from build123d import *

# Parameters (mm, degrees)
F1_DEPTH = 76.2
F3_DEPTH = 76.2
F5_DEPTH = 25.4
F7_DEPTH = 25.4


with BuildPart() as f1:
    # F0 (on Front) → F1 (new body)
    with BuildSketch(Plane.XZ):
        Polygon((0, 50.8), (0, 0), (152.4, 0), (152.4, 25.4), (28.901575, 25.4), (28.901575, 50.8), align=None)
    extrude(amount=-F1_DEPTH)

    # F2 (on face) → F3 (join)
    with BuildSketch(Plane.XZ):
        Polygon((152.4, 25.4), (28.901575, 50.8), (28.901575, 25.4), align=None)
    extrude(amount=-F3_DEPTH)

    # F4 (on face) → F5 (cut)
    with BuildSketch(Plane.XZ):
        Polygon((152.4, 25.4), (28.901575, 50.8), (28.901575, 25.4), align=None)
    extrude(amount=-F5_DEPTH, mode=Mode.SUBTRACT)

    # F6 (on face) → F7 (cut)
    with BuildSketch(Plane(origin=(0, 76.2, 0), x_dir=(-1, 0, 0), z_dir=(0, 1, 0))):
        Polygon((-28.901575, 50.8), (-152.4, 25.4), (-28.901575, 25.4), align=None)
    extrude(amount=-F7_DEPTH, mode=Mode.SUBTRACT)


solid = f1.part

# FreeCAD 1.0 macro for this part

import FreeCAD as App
import Part
import Sketcher
from FreeCAD import Vector
Q = App.Units.Quantity

doc = App.newDocument("Part")
body = doc.addObject("PartDesign::Body", "Body")

# Sketch on XZ plane
sketch1 = doc.addObject("Sketcher::SketchObject", "Sketch")
body.addObject(sketch1)
sketch1.AttachmentSupport = (doc.XZ_Plane, [""])
sketch1.MapMode = "FlatFace"
sketch1.addGeometry([
    Part.LineSegment(Vector(0, 51, 0), Vector(0, 0, 0)),  # 0
    Part.LineSegment(Vector(0, 0, 0), Vector(152, 0, 0)),  # 1
    Part.LineSegment(Vector(152, 0, 0), Vector(152, 25, 0)),  # 2
    Part.LineSegment(Vector(152, 25, 0), Vector(29, 25, 0)),  # 3
    Part.LineSegment(Vector(29, 25, 0), Vector(29, 51, 0)),  # 4
    Part.LineSegment(Vector(29, 51, 0), Vector(0, 51, 0)),  # 5
], False)
sketch1.addConstraint([
    Sketcher.Constraint("Coincident", 0, 2, 1, 1),
    Sketcher.Constraint("Coincident", 1, 2, 2, 1),
    Sketcher.Constraint("Coincident", 2, 2, 3, 1),
    Sketcher.Constraint("Coincident", 3, 2, 4, 1),
    Sketcher.Constraint("Coincident", 4, 2, 5, 1),
    Sketcher.Constraint("Coincident", 5, 2, 0, 1),
    Sketcher.Constraint("Vertical", 0),
    Sketcher.Constraint("Horizontal", 1),
    Sketcher.Constraint("Vertical", 2),
    Sketcher.Constraint("Horizontal", 3),
    Sketcher.Constraint("Vertical", 4),
    Sketcher.Constraint("Horizontal", 5),
    Sketcher.Constraint("Coincident", 0, 2, -1, 1),
    Sketcher.Constraint("Equal", 2, 4),
    Sketcher.Constraint("DistanceX", 1, 1, 1, 2, Q("6 in")),
    Sketcher.Constraint("DistanceY", 0, 2, 0, 1, Q("2 in")),
    Sketcher.Constraint("DistanceX", 3, 2, 3, 1, Q("123.498425 mm")),
])
pad1 = doc.addObject("PartDesign::Pad", "Pad")
body.addObject(pad1)
pad1.Profile = sketch1
pad1.Length = Q("3 in")
pad1.Reversed = True

# Sketch on XZ plane
sketch2 = doc.addObject("Sketcher::SketchObject", "Sketch001")
body.addObject(sketch2)
sketch2.AttachmentSupport = (doc.XZ_Plane, [""])
sketch2.MapMode = "FlatFace"
sketch2.addGeometry([
    Part.LineSegment(Vector(152, 25, 0), Vector(29, 51, 0)),
    Part.LineSegment(Vector(29, 51, 0), Vector(29, 25, 0)),
    Part.LineSegment(Vector(29, 25, 0), Vector(152, 25, 0)),
], False)
sketch2.addConstraint([
    Sketcher.Constraint("Coincident", 0, 2, 1, 1),
    Sketcher.Constraint("Coincident", 1, 2, 2, 1),
    Sketcher.Constraint("Coincident", 2, 2, 0, 1),
    Sketcher.Constraint("Vertical", 1),
    Sketcher.Constraint("Horizontal", 2),
    Sketcher.Constraint("DistanceY", 1, 2, 1, 1, Q("1 in")),
    Sketcher.Constraint("DistanceY", -1, 1, 0, 2, Q("2 in")),
    Sketcher.Constraint("DistanceX", -1, 1, 2, 2, Q("6 in")),
    Sketcher.Constraint("Distance", 0, Q("126.083389 mm")),
])
pad2 = doc.addObject("PartDesign::Pad", "Pad001")
body.addObject(pad2)
pad2.Profile = sketch2
pad2.Length = Q("3 in")
pad2.Reversed = True

# Sketch on XZ plane
sketch3 = doc.addObject("Sketcher::SketchObject", "Sketch002")
body.addObject(sketch3)
sketch3.AttachmentSupport = (doc.XZ_Plane, [""])
sketch3.MapMode = "FlatFace"
sketch3.addGeometry([
    Part.LineSegment(Vector(152, 25, 0), Vector(29, 51, 0)),
    Part.LineSegment(Vector(29, 51, 0), Vector(29, 25, 0)),
    Part.LineSegment(Vector(29, 25, 0), Vector(152, 25, 0)),
], False)
sketch3.addConstraint([
    Sketcher.Constraint("Coincident", 0, 2, 1, 1),
    Sketcher.Constraint("Coincident", 1, 2, 2, 1),
    Sketcher.Constraint("Coincident", 2, 2, 0, 1),
    Sketcher.Constraint("Vertical", 1),
    Sketcher.Constraint("Horizontal", 2),
    Sketcher.Constraint("DistanceY", 1, 2, 1, 1, Q("1 in")),
    Sketcher.Constraint("DistanceY", -1, 1, 0, 2, Q("2 in")),
    Sketcher.Constraint("DistanceX", -1, 1, 2, 2, Q("6 in")),
    Sketcher.Constraint("Distance", 0, Q("126.083389 mm")),
])
pocket1 = doc.addObject("PartDesign::Pocket", "Pocket")
body.addObject(pocket1)
pocket1.Profile = sketch3
pocket1.Length = Q("1 in")

# Sketch on XZ plane
sketch4 = doc.addObject("Sketcher::SketchObject", "Sketch003")
body.addObject(sketch4)
sketch4.AttachmentSupport = (doc.XZ_Plane, [""])
sketch4.MapMode = "FlatFace"
sketch4.AttachmentOffset = App.Placement(Vector(0, 0, -3 * 25.4), App.Rotation())
sketch4.addGeometry([
    Part.LineSegment(Vector(29, 51, 0), Vector(152, 25, 0)),
    Part.LineSegment(Vector(152, 25, 0), Vector(29, 25, 0)),
    Part.LineSegment(Vector(29, 25, 0), Vector(29, 51, 0)),
], False)
sketch4.addConstraint([
    Sketcher.Constraint("Coincident", 0, 2, 1, 1),
    Sketcher.Constraint("Coincident", 1, 2, 2, 1),
    Sketcher.Constraint("Coincident", 2, 2, 0, 1),
    Sketcher.Constraint("Horizontal", 1),
    Sketcher.Constraint("Vertical", 2),
    Sketcher.Constraint("DistanceY", 2, 1, 2, 2, Q("1 in")),
    Sketcher.Constraint("DistanceX", -1, 1, 0, 2, Q("6 in")),
    Sketcher.Constraint("DistanceY", -1, 1, 0, 2, Q("1 in")),
    Sketcher.Constraint("Distance", 0, Q("126.083389 mm")),
])
pocket2 = doc.addObject("PartDesign::Pocket", "Pocket001")
body.addObject(pocket2)
pocket2.Profile = sketch4
pocket2.Length = Q("1 in")
pocket2.Reversed = True

doc.recompute()
